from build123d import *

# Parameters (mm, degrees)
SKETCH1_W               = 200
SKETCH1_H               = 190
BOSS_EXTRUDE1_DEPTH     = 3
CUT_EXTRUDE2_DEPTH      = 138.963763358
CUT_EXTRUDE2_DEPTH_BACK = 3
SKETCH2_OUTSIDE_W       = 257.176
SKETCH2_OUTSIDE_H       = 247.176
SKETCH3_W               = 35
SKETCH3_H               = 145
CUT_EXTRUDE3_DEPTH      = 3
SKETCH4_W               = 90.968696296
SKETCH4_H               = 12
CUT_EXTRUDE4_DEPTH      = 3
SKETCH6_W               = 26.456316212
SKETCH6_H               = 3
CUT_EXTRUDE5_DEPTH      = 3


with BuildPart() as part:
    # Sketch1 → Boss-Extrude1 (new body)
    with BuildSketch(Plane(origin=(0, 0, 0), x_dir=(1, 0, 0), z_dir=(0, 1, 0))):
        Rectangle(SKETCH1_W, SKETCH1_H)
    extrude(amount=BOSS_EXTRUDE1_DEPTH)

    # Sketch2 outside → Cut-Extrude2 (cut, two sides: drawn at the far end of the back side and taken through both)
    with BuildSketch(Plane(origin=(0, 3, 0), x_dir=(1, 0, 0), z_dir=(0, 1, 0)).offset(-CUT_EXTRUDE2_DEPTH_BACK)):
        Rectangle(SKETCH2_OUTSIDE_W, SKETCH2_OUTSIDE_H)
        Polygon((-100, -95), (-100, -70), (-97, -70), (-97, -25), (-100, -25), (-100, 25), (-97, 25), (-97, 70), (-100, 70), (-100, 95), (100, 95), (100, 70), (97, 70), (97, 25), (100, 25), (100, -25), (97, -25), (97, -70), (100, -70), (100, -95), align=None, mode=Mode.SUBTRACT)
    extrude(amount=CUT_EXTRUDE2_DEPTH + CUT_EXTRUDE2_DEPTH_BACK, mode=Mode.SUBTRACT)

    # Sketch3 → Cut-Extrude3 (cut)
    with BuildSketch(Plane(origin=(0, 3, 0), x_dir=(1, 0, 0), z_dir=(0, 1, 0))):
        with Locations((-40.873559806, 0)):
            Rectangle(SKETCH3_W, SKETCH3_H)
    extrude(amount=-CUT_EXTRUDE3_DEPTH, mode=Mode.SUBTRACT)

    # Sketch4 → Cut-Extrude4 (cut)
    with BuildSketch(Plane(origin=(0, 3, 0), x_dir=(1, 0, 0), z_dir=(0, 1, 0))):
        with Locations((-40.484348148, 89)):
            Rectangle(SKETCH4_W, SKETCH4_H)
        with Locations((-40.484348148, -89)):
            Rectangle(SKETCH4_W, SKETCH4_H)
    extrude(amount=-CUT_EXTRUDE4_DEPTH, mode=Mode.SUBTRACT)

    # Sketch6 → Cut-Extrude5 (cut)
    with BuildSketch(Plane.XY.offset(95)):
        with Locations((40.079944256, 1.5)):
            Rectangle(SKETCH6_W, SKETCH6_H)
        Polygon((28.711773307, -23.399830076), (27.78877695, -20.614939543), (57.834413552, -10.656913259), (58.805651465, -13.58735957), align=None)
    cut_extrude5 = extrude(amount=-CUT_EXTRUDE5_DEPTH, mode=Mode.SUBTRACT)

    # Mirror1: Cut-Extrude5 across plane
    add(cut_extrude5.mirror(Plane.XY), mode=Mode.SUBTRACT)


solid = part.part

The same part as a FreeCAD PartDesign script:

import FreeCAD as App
import Part
import Sketcher

V = App.Vector
Q = App.Units.Quantity


def add_polygon(sketch, points):
    """Adds a closed chain of lines whose ends are joined by coincident constraints."""
    first, n = sketch.GeometryCount, len(points)
    for a, b in zip(points, points[1:] + points[:1]):
        sketch.addGeometry(Part.LineSegment(App.Vector(*a, 0), App.Vector(*b, 0)), False)
    for i in range(n):
        sketch.addConstraint(Sketcher.Constraint("Coincident", first + i, 2, first + (i + 1) % n, 1))

doc = App.newDocument("Part")
params = doc.addObject("Spreadsheet::Sheet", "Params")
for row, (alias, value) in enumerate([
    ("sketch1_width", "200 mm"),
    ("sketch1_height", "190 mm"),
    ("pad1_length", "3 mm"),
    ("sketch2_width", "200 mm"),
    ("sketch2_width2", "3 mm"),
    ("sketch2_height", "25 mm"),
    ("sketch2_height2", "45 mm"),
    ("sketch2_height3", "50 mm"),
    ("sketch3_width", "35 mm"),
    ("sketch3_height", "145 mm"),
    ("pocket2_length", "3 mm"),
    ("sketch4_height", "12 mm"),
    ("pocket3_length", "3 mm"),
    ("sketch5_height", "3 mm"),
    ("pocket4_length", "3 mm"),
], start=1):
    params.set(f"A{row}", alias)
    params.set(f"B{row}", "=" + value)
    params.setAlias(f"B{row}", alias)

body = doc.addObject("PartDesign::Body", "Body")

sketch1 = body.newObject("Sketcher::SketchObject", "Sketch")
sketch1.AttachmentSupport = (doc.getObject("XZ_Plane"), [""])
sketch1.MapMode = "FlatFace"
add_polygon(sketch1, [(-100, -95), (-100, 95), (100, 95), (100, -95)])
sketch1.addConstraint([
    Sketcher.Constraint("Vertical", 0),
    Sketcher.Constraint("Horizontal", 1),
    Sketcher.Constraint("Vertical", 2),
    Sketcher.Constraint("Horizontal", 3),
    Sketcher.Constraint("Symmetric", 0, 2, 2, 2, -1, 1),
    Sketcher.Constraint("DistanceX", 1, 1, 1, 2, Q("200 mm")),
    Sketcher.Constraint("DistanceY", 0, 1, 0, 2, Q("190 mm")),
])
sketch1.setExpression("Constraints[9]", "Params.sketch1_width")
sketch1.setExpression("Constraints[10]", "Params.sketch1_height")
pad1 = body.newObject("PartDesign::Pad", "Pad")
pad1.Profile = sketch1
pad1.setExpression("Length", "Params.pad1_length")
pad1.Reversed = True

sketch2 = body.newObject("Sketcher::SketchObject", "Sketch001")
sketch2.AttachmentSupport = (doc.getObject("XZ_Plane"), [""])
sketch2.MapMode = "FlatFace"
sketch2.AttachmentOffset = App.Placement(V(0, 0, -3), App.Rotation())
add_polygon(sketch2, [(-128.6, -123.6), (-128.6, 123.6), (128.6, 123.6), (128.6, -123.6)])
add_polygon(sketch2, [(100, 95), (-100, 95), (-100, 70), (-97, 70), (-97, 25), (-100, 25), (-100, -25), (-97, -25), (-97, -70), (-100, -70), (-100, -95), (100, -95), (100, -70), (97, -70), (97, -25), (100, -25), (100, 25), (97, 25), (97, 70), (100, 70)])
sketch2.addConstraint([
    Sketcher.Constraint("Vertical", 0),
    Sketcher.Constraint("Horizontal", 1),
    Sketcher.Constraint("Vertical", 2),
    Sketcher.Constraint("Horizontal", 3),
    Sketcher.Constraint("Horizontal", 4),
    Sketcher.Constraint("Vertical", 5),
    Sketcher.Constraint("Horizontal", 6),
    Sketcher.Constraint("Vertical", 7),
    Sketcher.Constraint("Horizontal", 8),
    Sketcher.Constraint("Vertical", 9),
    Sketcher.Constraint("Horizontal", 10),
    Sketcher.Constraint("Vertical", 11),
    Sketcher.Constraint("Horizontal", 12),
    Sketcher.Constraint("Vertical", 13),
    Sketcher.Constraint("Horizontal", 14),
    Sketcher.Constraint("Vertical", 15),
    Sketcher.Constraint("Horizontal", 16),
    Sketcher.Constraint("Vertical", 17),
    Sketcher.Constraint("Horizontal", 18),
    Sketcher.Constraint("Vertical", 19),
    Sketcher.Constraint("Horizontal", 20),
    Sketcher.Constraint("Vertical", 21),
    Sketcher.Constraint("Horizontal", 22),
    Sketcher.Constraint("Vertical", 23),
    Sketcher.Constraint("Symmetric", 0, 2, 2, 2, -1, 1),
    Sketcher.Constraint("Symmetric", 4, 2, 14, 2, -1, 1),
    Sketcher.Constraint("Symmetric", 6, 2, 16, 2, -1, 1),
    Sketcher.Constraint("Symmetric", 8, 2, 18, 2, -1, 1),
    Sketcher.Constraint("Symmetric", 10, 2, 20, 2, -1, 1),
    Sketcher.Constraint("Symmetric", 12, 2, 22, 2, -1, 1),
    Sketcher.Constraint("Symmetric", 12, 2, 15, 2, -2),
    Sketcher.Constraint("Symmetric", 10, 2, 17, 2, -2),
    Sketcher.Constraint("Vertical", 5, 2, 8, 2),
    Sketcher.Constraint("DistanceX", 4, 2, 4, 1, Q("200 mm")),
    Sketcher.Constraint("DistanceX", 6, 1, 6, 2, Q("3 mm")),
    Sketcher.Constraint("DistanceY", 5, 2, 5, 1, Q("25 mm")),
    Sketcher.Constraint("DistanceY", 7, 2, 7, 1, Q("45 mm")),
    Sketcher.Constraint("DistanceY", 9, 2, 9, 1, Q("50 mm")),
    Sketcher.Constraint("DistanceX", 1, 1, 1, 2, Q("257.176 mm")),
    Sketcher.Constraint("DistanceY", 0, 1, 0, 2, Q("247.176 mm")),
])
sketch2.setExpression("Constraints[57]", "Params.sketch2_width")
sketch2.setExpression("Constraints[58]", "Params.sketch2_width2")
sketch2.setExpression("Constraints[59]", "Params.sketch2_height")
sketch2.setExpression("Constraints[60]", "Params.sketch2_height2")
sketch2.setExpression("Constraints[61]", "Params.sketch2_height3")
pocket1 = body.newObject("PartDesign::Pocket", "Pocket")
pocket1.Profile = sketch2
pocket1.Type = "ThroughAll"
pocket1.Midplane = True

sketch3 = body.newObject("Sketcher::SketchObject", "Sketch002")
sketch3.AttachmentSupport = (doc.getObject("XZ_Plane"), [""])
sketch3.MapMode = "FlatFace"
sketch3.AttachmentOffset = App.Placement(V(0, 0, -3), App.Rotation())
add_polygon(sketch3, [(-58, -72), (-58, 72), (-23, 72), (-23, -72)])
sketch3.addConstraint([
    Sketcher.Constraint("Vertical", 0),
    Sketcher.Constraint("Horizontal", 1),
    Sketcher.Constraint("Vertical", 2),
    Sketcher.Constraint("Horizontal", 3),
    Sketcher.Constraint("DistanceX", 1, 1, 1, 2, Q("35 mm")),
    Sketcher.Constraint("DistanceY", 0, 1, 0, 2, Q("145 mm")),
    Sketcher.Constraint("DistanceY", -1, 1, 0, 2, Q("72.5 mm")),
    Sketcher.Constraint("DistanceX", 0, 2, -1, 1, Q("58.37356 mm")),
])
sketch3.setExpression("Constraints[8]", "Params.sketch3_width")
sketch3.setExpression("Constraints[9]", "Params.sketch3_height")
pocket2 = body.newObject("PartDesign::Pocket", "Pocket001")
pocket2.Profile = sketch3
pocket2.setExpression("Length", "Params.pocket2_length")
pocket2.Reversed = True

sketch4 = body.newObject("Sketcher::SketchObject", "Sketch003")
sketch4.AttachmentSupport = (doc.getObject("XZ_Plane"), [""])
sketch4.MapMode = "FlatFace"
sketch4.AttachmentOffset = App.Placement(V(0, 0, -3), App.Rotation())
add_polygon(sketch4, [(-86, -95), (-86, -83), (5, -83), (5, -95)])
add_polygon(sketch4, [(-86, 83), (-86, 95), (5, 95), (5, 83)])
sketch4.addConstraint([
    Sketcher.Constraint("Vertical", 0),
    Sketcher.Constraint("Horizontal", 1),
    Sketcher.Constraint("Vertical", 2),
    Sketcher.Constraint("Horizontal", 3),
    Sketcher.Constraint("Vertical", 4),
    Sketcher.Constraint("Horizontal", 5),
    Sketcher.Constraint("Vertical", 6),
    Sketcher.Constraint("Horizontal", 7),
    Sketcher.Constraint("Symmetric", 3, 2, 4, 2, -1),
    Sketcher.Constraint("Symmetric", 1, 2, 6, 2, -1),
    Sketcher.Constraint("DistanceY", 0, 1, 0, 2, Q("12 mm")),
    Sketcher.Constraint("DistanceY", 0, 2, -1, 1, Q("83 mm")),
    Sketcher.Constraint("DistanceX", -1, 1, 1, 2, Q("5 mm")),
    Sketcher.Constraint("DistanceX", 1, 1, 1, 2, Q("90.968696 mm")),
])
sketch4.setExpression("Constraints[18]", "Params.sketch4_height")
pocket3 = body.newObject("PartDesign::Pocket", "Pocket002")
pocket3.Profile = sketch4
pocket3.setExpression("Length", "Params.pocket3_length")
pocket3.Reversed = True

sketch5 = body.newObject("Sketcher::SketchObject", "Sketch004")
sketch5.AttachmentSupport = (doc.getObject("XY_Plane"), [""])
sketch5.MapMode = "FlatFace"
sketch5.AttachmentOffset = App.Placement(V(0, 0, 95), App.Rotation())
add_polygon(sketch5, [(26.851786, 3), (26.851786, 0), (53.308102, 0), (53.308102, 3)])
add_polygon(sketch5, [(27.788777, -20.61494), (28.711773, -23.39983), (58.805651, -13.58736), (57.834414, -10.656913)])
sketch5.addConstraint([
    Sketcher.Constraint("Vertical", 0),
    Sketcher.Constraint("Horizontal", 1),
    Sketcher.Constraint("Vertical", 2),
    Sketcher.Constraint("Horizontal", 3),
    Sketcher.Constraint("PointOnObject", 0, 2, -1),
    Sketcher.Constraint("Parallel", 4, 6),
    Sketcher.Constraint("Perpendicular", 6, 7),
    Sketcher.Constraint("DistanceY", 0, 2, 0, 1, Q("3 mm")),
    Sketcher.Constraint("Distance", 4, Q("2.933861 mm")),
    Sketcher.Constraint("DistanceX", 1, 1, 1, 2, Q("26.456316 mm")),
    Sketcher.Constraint("DistanceY", 4, 2, -1, 1, Q("23.39983 mm")),
    Sketcher.Constraint("DistanceX", -1, 1, 5, 2, Q("58.805651 mm")),
    Sketcher.Constraint("DistanceY", 5, 2, -1, 1, Q("13.58736 mm")),
    Sketcher.Constraint("DistanceY", 7, 2, -1, 1, Q("20.61494 mm")),
    Sketcher.Constraint("DistanceX", 4, 2, 1, 2, Q("24.596329 mm")),
    Sketcher.Constraint("DistanceX", 1, 2, 5, 2, Q("5.497549 mm")),
])
sketch5.setExpression("Constraints[15]", "Params.sketch5_height")
pocket4 = body.newObject("PartDesign::Pocket", "Pocket003")
pocket4.Profile = sketch5
pocket4.setExpression("Length", "Params.pocket4_length")
doc.recompute()

mirrored = body.newObject("PartDesign::Mirrored", "Mirrored")
mirrored.Originals = [pocket4]
mirrored.MirrorPlane = (doc.getObject("XY_Plane"), [""])
body.Tip = mirrored

doc.recompute()
